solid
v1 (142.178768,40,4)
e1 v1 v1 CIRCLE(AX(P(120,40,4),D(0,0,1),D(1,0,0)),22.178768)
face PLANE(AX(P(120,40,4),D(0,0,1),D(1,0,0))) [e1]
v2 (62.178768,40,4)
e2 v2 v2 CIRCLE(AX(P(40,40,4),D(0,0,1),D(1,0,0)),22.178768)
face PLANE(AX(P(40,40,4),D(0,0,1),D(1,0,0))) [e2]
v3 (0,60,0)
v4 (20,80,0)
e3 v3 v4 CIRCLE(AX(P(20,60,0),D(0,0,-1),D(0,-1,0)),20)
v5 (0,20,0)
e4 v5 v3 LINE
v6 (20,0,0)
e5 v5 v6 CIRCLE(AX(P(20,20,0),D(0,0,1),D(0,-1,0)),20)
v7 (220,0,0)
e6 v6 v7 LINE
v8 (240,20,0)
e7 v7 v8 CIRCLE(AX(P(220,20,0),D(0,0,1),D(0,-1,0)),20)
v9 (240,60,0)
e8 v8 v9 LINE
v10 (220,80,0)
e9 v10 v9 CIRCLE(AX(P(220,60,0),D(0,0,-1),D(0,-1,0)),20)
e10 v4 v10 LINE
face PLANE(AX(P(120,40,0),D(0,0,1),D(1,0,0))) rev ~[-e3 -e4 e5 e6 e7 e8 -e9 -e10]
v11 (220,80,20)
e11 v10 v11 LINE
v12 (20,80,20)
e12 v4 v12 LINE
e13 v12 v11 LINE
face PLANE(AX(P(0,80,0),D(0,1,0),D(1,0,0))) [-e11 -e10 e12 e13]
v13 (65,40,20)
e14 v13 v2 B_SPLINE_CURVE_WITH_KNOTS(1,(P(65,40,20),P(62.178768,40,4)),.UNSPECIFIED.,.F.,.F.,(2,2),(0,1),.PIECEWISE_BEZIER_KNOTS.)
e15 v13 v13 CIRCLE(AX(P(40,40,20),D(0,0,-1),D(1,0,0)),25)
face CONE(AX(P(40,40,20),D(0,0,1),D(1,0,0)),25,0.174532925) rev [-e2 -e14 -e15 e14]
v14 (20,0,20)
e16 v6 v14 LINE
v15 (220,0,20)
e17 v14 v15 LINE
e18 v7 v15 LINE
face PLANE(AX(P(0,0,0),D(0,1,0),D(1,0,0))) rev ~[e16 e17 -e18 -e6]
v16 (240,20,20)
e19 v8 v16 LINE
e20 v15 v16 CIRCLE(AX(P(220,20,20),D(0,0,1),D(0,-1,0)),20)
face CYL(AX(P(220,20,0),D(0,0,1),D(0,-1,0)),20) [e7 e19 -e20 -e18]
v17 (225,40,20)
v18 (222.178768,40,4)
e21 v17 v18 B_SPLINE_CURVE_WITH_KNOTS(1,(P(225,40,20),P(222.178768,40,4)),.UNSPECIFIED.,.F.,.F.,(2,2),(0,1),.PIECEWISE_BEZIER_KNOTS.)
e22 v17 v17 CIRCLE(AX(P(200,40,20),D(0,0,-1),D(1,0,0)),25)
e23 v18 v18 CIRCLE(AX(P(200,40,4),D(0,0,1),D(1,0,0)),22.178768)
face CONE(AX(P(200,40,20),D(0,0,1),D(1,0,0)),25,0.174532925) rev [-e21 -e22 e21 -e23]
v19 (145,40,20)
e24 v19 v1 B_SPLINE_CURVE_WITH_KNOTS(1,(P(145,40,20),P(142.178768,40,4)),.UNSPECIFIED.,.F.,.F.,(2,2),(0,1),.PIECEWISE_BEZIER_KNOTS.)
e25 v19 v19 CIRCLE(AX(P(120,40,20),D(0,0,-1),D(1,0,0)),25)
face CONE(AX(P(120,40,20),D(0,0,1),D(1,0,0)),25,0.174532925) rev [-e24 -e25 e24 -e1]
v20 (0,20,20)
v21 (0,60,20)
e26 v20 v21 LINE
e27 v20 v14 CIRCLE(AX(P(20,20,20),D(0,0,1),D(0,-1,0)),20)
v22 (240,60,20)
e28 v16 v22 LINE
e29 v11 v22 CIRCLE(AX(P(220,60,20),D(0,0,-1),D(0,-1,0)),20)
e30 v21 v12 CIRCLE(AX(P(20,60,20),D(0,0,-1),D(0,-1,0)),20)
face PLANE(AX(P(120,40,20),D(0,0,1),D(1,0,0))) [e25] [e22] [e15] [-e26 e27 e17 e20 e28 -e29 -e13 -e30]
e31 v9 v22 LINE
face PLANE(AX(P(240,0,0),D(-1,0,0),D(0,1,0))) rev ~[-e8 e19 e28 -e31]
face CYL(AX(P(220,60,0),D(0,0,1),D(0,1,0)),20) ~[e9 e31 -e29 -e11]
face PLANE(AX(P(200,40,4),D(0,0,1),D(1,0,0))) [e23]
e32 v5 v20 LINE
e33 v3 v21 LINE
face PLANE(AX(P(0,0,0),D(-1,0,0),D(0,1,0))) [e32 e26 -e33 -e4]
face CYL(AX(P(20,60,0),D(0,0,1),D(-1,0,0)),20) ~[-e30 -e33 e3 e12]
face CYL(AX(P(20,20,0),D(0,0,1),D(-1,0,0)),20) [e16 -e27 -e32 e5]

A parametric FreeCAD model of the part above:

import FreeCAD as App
import Part
import Sketcher
Q = App.Units.Quantity


def edges_at(feature, points):
    """Names of the edges that pass closest to the given points."""
    edges = feature.Shape.Edges
    near = lambda p: min(range(len(edges)), key=lambda i: edges[i].distToShape(Part.Vertex(*p))[0])
    return sorted({f"Edge{near(p) + 1}" for p in points})


def add_polygon(sketch, points):
    """Adds a closed chain of lines whose ends are joined by coincident constraints."""
    first, n = sketch.GeometryCount, len(points)
    for a, b in zip(points, points[1:] + points[:1]):
        sketch.addGeometry(Part.LineSegment(App.Vector(*a, 0), App.Vector(*b, 0)), False)
    for i in range(n):
        sketch.addConstraint(Sketcher.Constraint("Coincident", first + i, 2, first + (i + 1) % n, 1))

doc = App.newDocument("Part")
params = doc.addObject("Spreadsheet::Sheet", "Params")
for row, (alias, value) in enumerate([
    ("sketch1_width", "240 mm"),
    ("sketch1_height", "80 mm"),
    ("pad1_length", "20 mm"),
    ("sketch2_diameter", "50 mm"),
    ("pocket1_length", "16 mm"),
    ("pocket1_taper", "-10 deg"),
    ("fillet_radius", "20 mm"),
], start=1):
    params.set(f"A{row}", alias)
    params.set(f"B{row}", "=" + value)
    params.setAlias(f"B{row}", alias)

body = doc.addObject("PartDesign::Body", "Body")

# Sketch on XY plane
sketch1 = body.newObject("Sketcher::SketchObject", "Sketch")
sketch1.AttachmentSupport = (doc.getObject("XY_Plane"), [""])
sketch1.MapMode = "FlatFace"
add_polygon(sketch1, [(0, 80), (0, 0), (240, 0), (240, 80)])  # lines 0-3
sketch1.addConstraint(Sketcher.Constraint("Vertical", 0))
sketch1.addConstraint(Sketcher.Constraint("Horizontal", 1))
sketch1.addConstraint(Sketcher.Constraint("Vertical", 2))
sketch1.addConstraint(Sketcher.Constraint("Horizontal", 3))
sketch1.addConstraint(Sketcher.Constraint("Coincident", 0, 2, -1, 1))
sketch1.addConstraint(Sketcher.Constraint("DistanceX", 1, 1, 1, 2, Q("240 mm")))
sketch1.addConstraint(Sketcher.Constraint("DistanceY", 0, 2, 0, 1, Q("80 mm")))
sketch1.setExpression("Constraints[9]", "Params.sketch1_width")
sketch1.setExpression("Constraints[10]", "Params.sketch1_height")
pad1 = body.newObject("PartDesign::Pad", "Pad")
pad1.Profile = sketch1
pad1.setExpression("Length", "Params.pad1_length")

# Sketch on XY plane
sketch2 = body.newObject("Sketcher::SketchObject", "Sketch001")
sketch2.AttachmentSupport = (doc.getObject("XY_Plane"), [""])
sketch2.MapMode = "FlatFace"
sketch2.AttachmentOffset = App.Placement(App.Vector(0, 0, 20), App.Rotation())
sketch2.addGeometry(Part.Circle(App.Vector(40, 40, 0), App.Vector(0, 0, 1), 25), False)
sketch2.addGeometry(Part.Circle(App.Vector(120, 40, 0), App.Vector(0, 0, 1), 25), False)
sketch2.addGeometry(Part.Circle(App.Vector(200, 40, 0), App.Vector(0, 0, 1), 25), False)
sketch2.addConstraint(Sketcher.Constraint("Equal", 0, 1))
sketch2.addConstraint(Sketcher.Constraint("Equal", 1, 2))
sketch2.addConstraint(Sketcher.Constraint("Horizontal", 0, 3, 1, 3))
sketch2.addConstraint(Sketcher.Constraint("Horizontal", 1, 3, 2, 3))
sketch2.addConstraint(Sketcher.Constraint("Diameter", 0, Q("50 mm")))
sketch2.addConstraint(Sketcher.Constraint("DistanceX", -1, 1, 0, 3, Q("40 mm")))
sketch2.addConstraint(Sketcher.Constraint("DistanceY", -1, 1, 0, 3, Q("40 mm")))
sketch2.addConstraint(Sketcher.Constraint("DistanceX", -1, 1, 1, 3, Q("120 mm")))
sketch2.addConstraint(Sketcher.Constraint("DistanceX", -1, 1, 2, 3, Q("200 mm")))
sketch2.setExpression("Constraints[4]", "Params.sketch2_diameter")
pocket1 = body.newObject("PartDesign::Pocket", "Pocket")
pocket1.Profile = sketch2
pocket1.setExpression("Length", "Params.pocket1_length")
pocket1.setExpression("TaperAngle", "Params.pocket1_taper")
doc.recompute()

fillet = body.newObject("PartDesign::Fillet", "Fillet")
fillet.Base = (pocket1, edges_at(pocket1, [
    (240, 0, 10),
    (240, 80, 10),
    (0, 80, 10),
    (0, 0, 10),
]))
fillet.setExpression("Radius", "Params.fillet_radius")

doc.recompute()
